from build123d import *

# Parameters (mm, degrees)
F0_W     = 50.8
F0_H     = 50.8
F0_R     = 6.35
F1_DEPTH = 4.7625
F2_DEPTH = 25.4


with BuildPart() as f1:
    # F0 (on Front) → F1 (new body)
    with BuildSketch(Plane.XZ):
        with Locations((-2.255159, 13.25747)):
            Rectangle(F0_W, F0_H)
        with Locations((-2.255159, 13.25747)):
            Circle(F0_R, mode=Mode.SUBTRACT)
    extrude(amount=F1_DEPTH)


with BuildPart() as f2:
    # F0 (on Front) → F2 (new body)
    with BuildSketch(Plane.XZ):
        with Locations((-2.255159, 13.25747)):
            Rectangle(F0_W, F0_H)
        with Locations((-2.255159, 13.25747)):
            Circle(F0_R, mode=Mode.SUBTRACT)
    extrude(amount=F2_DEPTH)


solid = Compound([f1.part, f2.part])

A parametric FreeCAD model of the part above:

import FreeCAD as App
import Part
import Sketcher
from FreeCAD import Vector
Q = App.Units.Quantity

doc = App.newDocument("Part")
body = doc.addObject("PartDesign::Body", "Body")

# Sketch on XZ plane
sketch1 = body.newObject("Sketcher::SketchObject", "Sketch")
sketch1.AttachmentSupport = (doc.getObject("XZ_Plane"), [""])
sketch1.MapMode = "FlatFace"
sketch1.addGeometry(Part.LineSegment(Vector(-28, 39, 0), Vector(-28, -12, 0)), False)
sketch1.addGeometry(Part.LineSegment(Vector(-28, -12, 0), Vector(23, -12, 0)), False)
sketch1.addGeometry(Part.LineSegment(Vector(23, -12, 0), Vector(23, 39, 0)), False)
sketch1.addGeometry(Part.LineSegment(Vector(23, 39, 0), Vector(-28, 39, 0)), False)
sketch1.addGeometry(Part.Circle(Vector(-2, 13, 0), Vector(0, 0, 1), 6), False)
sketch1.addConstraint(Sketcher.Constraint("Coincident", 0, 2, 1, 1))
sketch1.addConstraint(Sketcher.Constraint("Coincident", 1, 2, 2, 1))
sketch1.addConstraint(Sketcher.Constraint("Coincident", 2, 2, 3, 1))
sketch1.addConstraint(Sketcher.Constraint("Coincident", 3, 2, 0, 1))
sketch1.addConstraint(Sketcher.Constraint("Vertical", 0))
sketch1.addConstraint(Sketcher.Constraint("Horizontal", 1))
sketch1.addConstraint(Sketcher.Constraint("Vertical", 2))
sketch1.addConstraint(Sketcher.Constraint("Horizontal", 3))
sketch1.addConstraint(Sketcher.Constraint("Equal", 3, 0))
sketch1.addConstraint(Sketcher.Constraint("Diameter", 4, Q("0.5 in")))
sketch1.addConstraint(Sketcher.Constraint("DistanceX", 1, 1, 1, 2, Q("2 in")))
sketch1.addConstraint(Sketcher.Constraint("DistanceX", 0, 2, 4, 3, Q("1 in")))
sketch1.addConstraint(Sketcher.Constraint("DistanceY", 0, 2, 4, 3, Q("1 in")))
sketch1.addConstraint(Sketcher.Constraint("DistanceX", 4, 3, -1, 1, Q("2.255159 mm")))
sketch1.addConstraint(Sketcher.Constraint("DistanceY", -1, 1, 4, 3, Q("13.25747 mm")))
pad1 = body.newObject("PartDesign::Pad", "Pad")
pad1.Profile = sketch1
pad1.Length = Q("0.1875 in")
body2 = doc.addObject("PartDesign::Body", "Body001")

# Sketch on XZ plane
sketch2 = body2.newObject("Sketcher::SketchObject", "Sketch001")
sketch2.AttachmentSupport = (doc.getObject("XZ_Plane001"), [""])
sketch2.MapMode = "FlatFace"
sketch2.addGeometry(Part.LineSegment(Vector(-28, 39, 0), Vector(-28, -12, 0)), False)
sketch2.addGeometry(Part.LineSegment(Vector(-28, -12, 0), Vector(23, -12, 0)), False)
sketch2.addGeometry(Part.LineSegment(Vector(23, -12, 0), Vector(23, 39, 0)), False)
sketch2.addGeometry(Part.LineSegment(Vector(23, 39, 0), Vector(-28, 39, 0)), False)
sketch2.addGeometry(Part.Circle(Vector(-2, 13, 0), Vector(0, 0, 1), 6), False)
sketch2.addConstraint(Sketcher.Constraint("Coincident", 0, 2, 1, 1))
sketch2.addConstraint(Sketcher.Constraint("Coincident", 1, 2, 2, 1))
sketch2.addConstraint(Sketcher.Constraint("Coincident", 2, 2, 3, 1))
sketch2.addConstraint(Sketcher.Constraint("Coincident", 3, 2, 0, 1))
sketch2.addConstraint(Sketcher.Constraint("Vertical", 0))
sketch2.addConstraint(Sketcher.Constraint("Horizontal", 1))
sketch2.addConstraint(Sketcher.Constraint("Vertical", 2))
sketch2.addConstraint(Sketcher.Constraint("Horizontal", 3))
sketch2.addConstraint(Sketcher.Constraint("Equal", 3, 0))
sketch2.addConstraint(Sketcher.Constraint("Diameter", 4, Q("0.5 in")))
sketch2.addConstraint(Sketcher.Constraint("DistanceX", 1, 1, 1, 2, Q("2 in")))
sketch2.addConstraint(Sketcher.Constraint("DistanceX", 0, 2, 4, 3, Q("1 in")))
sketch2.addConstraint(Sketcher.Constraint("DistanceY", 0, 2, 4, 3, Q("1 in")))
sketch2.addConstraint(Sketcher.Constraint("DistanceX", 4, 3, -1, 1, Q("2.255159 mm")))
sketch2.addConstraint(Sketcher.Constraint("DistanceY", -1, 1, 4, 3, Q("13.25747 mm")))
pad2 = body2.newObject("PartDesign::Pad", "Pad001")
pad2.Profile = sketch2
pad2.Length = Q("1 in")

doc.recompute()
